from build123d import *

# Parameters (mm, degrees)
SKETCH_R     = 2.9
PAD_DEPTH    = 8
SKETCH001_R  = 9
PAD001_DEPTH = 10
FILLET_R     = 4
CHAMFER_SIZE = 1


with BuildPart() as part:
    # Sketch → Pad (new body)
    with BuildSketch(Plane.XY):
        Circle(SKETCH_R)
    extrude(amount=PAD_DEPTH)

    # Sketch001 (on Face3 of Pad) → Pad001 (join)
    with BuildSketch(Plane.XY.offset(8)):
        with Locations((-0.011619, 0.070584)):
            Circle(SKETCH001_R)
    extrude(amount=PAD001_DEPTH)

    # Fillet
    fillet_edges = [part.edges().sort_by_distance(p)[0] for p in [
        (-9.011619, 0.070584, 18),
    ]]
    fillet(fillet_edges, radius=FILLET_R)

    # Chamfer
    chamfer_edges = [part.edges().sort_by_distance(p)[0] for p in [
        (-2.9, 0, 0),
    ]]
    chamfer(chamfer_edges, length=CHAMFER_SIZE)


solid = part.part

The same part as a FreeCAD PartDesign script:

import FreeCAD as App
import Part
import Sketcher
from FreeCAD import Vector


def edges_at(feature, points):
    """Names of the edges that pass closest to the given points."""
    edges = feature.Shape.Edges
    near = lambda p: min(range(len(edges)), key=lambda i: edges[i].distToShape(Part.Vertex(*p))[0])
    return sorted({f"Edge{near(p) + 1}" for p in points})

doc = App.newDocument("Part")
body = doc.addObject("PartDesign::Body", "Body")

# Sketch on XY plane
sketch1 = doc.addObject("Sketcher::SketchObject", "Sketch")
body.addObject(sketch1)
sketch1.AttachmentSupport = (doc.XY_Plane, [""])
sketch1.MapMode = "FlatFace"
sketch1.addGeometry(Part.Circle(Vector(0, 0, 0), Vector(0, 0, 1), 2.9), False)
sketch1.addConstraint([
    Sketcher.Constraint("Coincident", 0, 3, -1, 1),
    Sketcher.Constraint("Diameter", 0, 5.8),
])
pad1 = doc.addObject("PartDesign::Pad", "Pad")
body.addObject(pad1)
pad1.Profile = sketch1
pad1.Length = 8

# Sketch on XY plane
sketch2 = doc.addObject("Sketcher::SketchObject", "Sketch001")
body.addObject(sketch2)
sketch2.AttachmentSupport = (doc.XY_Plane, [""])
sketch2.MapMode = "FlatFace"
sketch2.AttachmentOffset = App.Placement(Vector(0, 0, 8), App.Rotation())
sketch2.addGeometry(Part.Circle(Vector(0, 0, 0), Vector(0, 0, 1), 9), False)
sketch2.addConstraint([
    Sketcher.Constraint("Diameter", 0, 18.0),
    Sketcher.Constraint("DistanceX", 0, 3, -1, 1, 0.011619),
    Sketcher.Constraint("DistanceY", -1, 1, 0, 3, 0.070584),
])
pad2 = doc.addObject("PartDesign::Pad", "Pad001")
body.addObject(pad2)
pad2.Profile = sketch2
pad2.Length = 10
doc.recompute()

fillet = doc.addObject("PartDesign::Fillet", "Fillet")
body.addObject(fillet)
fillet.Base = (pad2, edges_at(pad2, [(-9.012, 0.071, 18)]))
fillet.Radius = 4
doc.recompute()

chamfer = doc.addObject("PartDesign::Chamfer", "Chamfer")
body.addObject(chamfer)
chamfer.Base = (fillet, edges_at(fillet, [(-2.9, 0, 0)]))
chamfer.Size = 1

doc.recompute()
